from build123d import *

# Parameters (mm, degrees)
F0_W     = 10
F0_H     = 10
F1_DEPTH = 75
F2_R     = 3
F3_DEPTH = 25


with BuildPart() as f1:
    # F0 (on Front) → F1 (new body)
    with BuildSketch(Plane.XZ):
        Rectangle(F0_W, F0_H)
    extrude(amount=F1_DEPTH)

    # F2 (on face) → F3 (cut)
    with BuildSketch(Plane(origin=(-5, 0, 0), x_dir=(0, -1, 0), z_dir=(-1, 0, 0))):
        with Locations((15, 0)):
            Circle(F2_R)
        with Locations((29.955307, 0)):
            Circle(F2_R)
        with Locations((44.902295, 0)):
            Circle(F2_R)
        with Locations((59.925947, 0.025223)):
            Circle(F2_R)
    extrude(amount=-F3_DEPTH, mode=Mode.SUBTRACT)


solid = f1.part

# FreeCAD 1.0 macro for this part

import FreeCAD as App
import Part
import Sketcher
from FreeCAD import Vector

doc = App.newDocument("Part")
params = doc.addObject("Spreadsheet::Sheet", "Params")
for row, (alias, value) in enumerate([
    ("sketch1_width", "10 mm"),
    ("pad1_length", "75 mm"),
    ("sketch2_diameter", "6 mm"),
    ("pocket1_length", "25 mm"),
], start=1):
    params.set(f"A{row}", alias)
    params.set(f"B{row}", "=" + value)
    params.setAlias(f"B{row}", alias)

body = doc.addObject("PartDesign::Body", "Body")

# Sketch on XZ plane
sketch1 = body.newObject("Sketcher::SketchObject", "Sketch")
sketch1.AttachmentSupport = (doc.getObject("XZ_Plane"), [""])
sketch1.MapMode = "FlatFace"
sketch1.addGeometry([
    Part.LineSegment(Vector(-5, 5, 0), Vector(-5, -5, 0)),
    Part.LineSegment(Vector(-5, -5, 0), Vector(5, -5, 0)),
    Part.LineSegment(Vector(5, -5, 0), Vector(5, 5, 0)),
    Part.LineSegment(Vector(5, 5, 0), Vector(-5, 5, 0)),
], False)
sketch1.addConstraint([
    Sketcher.Constraint("Coincident", 0, 2, 1, 1),
    Sketcher.Constraint("Coincident", 1, 2, 2, 1),
    Sketcher.Constraint("Coincident", 2, 2, 3, 1),
    Sketcher.Constraint("Coincident", 3, 2, 0, 1),
    Sketcher.Constraint("Vertical", 0),
    Sketcher.Constraint("Horizontal", 1),
    Sketcher.Constraint("Vertical", 2),
    Sketcher.Constraint("Horizontal", 3),
    Sketcher.Constraint("Symmetric", 0, 2, 2, 2, -1, 1),
    Sketcher.Constraint("Equal", 3, 0),
    Sketcher.Constraint("DistanceX", 1, 1, 1, 2, 10.0),
])
sketch1.setExpression("Constraints[10]", "Params.sketch1_width")
pad1 = body.newObject("PartDesign::Pad", "Pad")
pad1.Profile = sketch1
pad1.setExpression("Length", "Params.pad1_length")

# Sketch on YZ plane
sketch2 = body.newObject("Sketcher::SketchObject", "Sketch001")
sketch2.AttachmentSupport = (doc.getObject("YZ_Plane"), [""])
sketch2.MapMode = "FlatFace"
sketch2.AttachmentOffset = App.Placement(Vector(0, 0, -5), App.Rotation())
sketch2.addGeometry([
    Part.Circle(Vector(-15, 0, 0), Vector(0, 0, 1), 3),
    Part.Circle(Vector(-30, 0, 0), Vector(0, 0, 1), 3),
    Part.Circle(Vector(-44.9, 0, 0), Vector(0, 0, 1), 3),
    Part.Circle(Vector(-59.9, 0, 0), Vector(0, 0, 1), 3),
], False)
sketch2.addConstraint([
    Sketcher.Constraint("Equal", 0, 1),
    Sketcher.Constraint("Equal", 1, 2),
    Sketcher.Constraint("Equal", 2, 3),
    Sketcher.Constraint("PointOnObject", 0, 3, -1),
    Sketcher.Constraint("PointOnObject", 1, 3, -1),
    Sketcher.Constraint("PointOnObject", 2, 3, -1),
    Sketcher.Constraint("Diameter", 0, 6.0),
    Sketcher.Constraint("DistanceX", 0, 3, -1, 1, 15.0),
    Sketcher.Constraint("DistanceX", 2, 3, 1, 3, 14.946988),
    Sketcher.Constraint("DistanceX", 3, 3, 2, 3, 15.023652),
    Sketcher.Constraint("DistanceX", 1, 3, -1, 1, 29.955307),
    Sketcher.Constraint("DistanceY", -1, 1, 3, 3, 0.025223),
])
sketch2.setExpression("Constraints[6]", "Params.sketch2_diameter")
pocket1 = body.newObject("PartDesign::Pocket", "Pocket")
pocket1.Profile = sketch2
pocket1.setExpression("Length", "Params.pocket1_length")
pocket1.Reversed = True

doc.recompute()
